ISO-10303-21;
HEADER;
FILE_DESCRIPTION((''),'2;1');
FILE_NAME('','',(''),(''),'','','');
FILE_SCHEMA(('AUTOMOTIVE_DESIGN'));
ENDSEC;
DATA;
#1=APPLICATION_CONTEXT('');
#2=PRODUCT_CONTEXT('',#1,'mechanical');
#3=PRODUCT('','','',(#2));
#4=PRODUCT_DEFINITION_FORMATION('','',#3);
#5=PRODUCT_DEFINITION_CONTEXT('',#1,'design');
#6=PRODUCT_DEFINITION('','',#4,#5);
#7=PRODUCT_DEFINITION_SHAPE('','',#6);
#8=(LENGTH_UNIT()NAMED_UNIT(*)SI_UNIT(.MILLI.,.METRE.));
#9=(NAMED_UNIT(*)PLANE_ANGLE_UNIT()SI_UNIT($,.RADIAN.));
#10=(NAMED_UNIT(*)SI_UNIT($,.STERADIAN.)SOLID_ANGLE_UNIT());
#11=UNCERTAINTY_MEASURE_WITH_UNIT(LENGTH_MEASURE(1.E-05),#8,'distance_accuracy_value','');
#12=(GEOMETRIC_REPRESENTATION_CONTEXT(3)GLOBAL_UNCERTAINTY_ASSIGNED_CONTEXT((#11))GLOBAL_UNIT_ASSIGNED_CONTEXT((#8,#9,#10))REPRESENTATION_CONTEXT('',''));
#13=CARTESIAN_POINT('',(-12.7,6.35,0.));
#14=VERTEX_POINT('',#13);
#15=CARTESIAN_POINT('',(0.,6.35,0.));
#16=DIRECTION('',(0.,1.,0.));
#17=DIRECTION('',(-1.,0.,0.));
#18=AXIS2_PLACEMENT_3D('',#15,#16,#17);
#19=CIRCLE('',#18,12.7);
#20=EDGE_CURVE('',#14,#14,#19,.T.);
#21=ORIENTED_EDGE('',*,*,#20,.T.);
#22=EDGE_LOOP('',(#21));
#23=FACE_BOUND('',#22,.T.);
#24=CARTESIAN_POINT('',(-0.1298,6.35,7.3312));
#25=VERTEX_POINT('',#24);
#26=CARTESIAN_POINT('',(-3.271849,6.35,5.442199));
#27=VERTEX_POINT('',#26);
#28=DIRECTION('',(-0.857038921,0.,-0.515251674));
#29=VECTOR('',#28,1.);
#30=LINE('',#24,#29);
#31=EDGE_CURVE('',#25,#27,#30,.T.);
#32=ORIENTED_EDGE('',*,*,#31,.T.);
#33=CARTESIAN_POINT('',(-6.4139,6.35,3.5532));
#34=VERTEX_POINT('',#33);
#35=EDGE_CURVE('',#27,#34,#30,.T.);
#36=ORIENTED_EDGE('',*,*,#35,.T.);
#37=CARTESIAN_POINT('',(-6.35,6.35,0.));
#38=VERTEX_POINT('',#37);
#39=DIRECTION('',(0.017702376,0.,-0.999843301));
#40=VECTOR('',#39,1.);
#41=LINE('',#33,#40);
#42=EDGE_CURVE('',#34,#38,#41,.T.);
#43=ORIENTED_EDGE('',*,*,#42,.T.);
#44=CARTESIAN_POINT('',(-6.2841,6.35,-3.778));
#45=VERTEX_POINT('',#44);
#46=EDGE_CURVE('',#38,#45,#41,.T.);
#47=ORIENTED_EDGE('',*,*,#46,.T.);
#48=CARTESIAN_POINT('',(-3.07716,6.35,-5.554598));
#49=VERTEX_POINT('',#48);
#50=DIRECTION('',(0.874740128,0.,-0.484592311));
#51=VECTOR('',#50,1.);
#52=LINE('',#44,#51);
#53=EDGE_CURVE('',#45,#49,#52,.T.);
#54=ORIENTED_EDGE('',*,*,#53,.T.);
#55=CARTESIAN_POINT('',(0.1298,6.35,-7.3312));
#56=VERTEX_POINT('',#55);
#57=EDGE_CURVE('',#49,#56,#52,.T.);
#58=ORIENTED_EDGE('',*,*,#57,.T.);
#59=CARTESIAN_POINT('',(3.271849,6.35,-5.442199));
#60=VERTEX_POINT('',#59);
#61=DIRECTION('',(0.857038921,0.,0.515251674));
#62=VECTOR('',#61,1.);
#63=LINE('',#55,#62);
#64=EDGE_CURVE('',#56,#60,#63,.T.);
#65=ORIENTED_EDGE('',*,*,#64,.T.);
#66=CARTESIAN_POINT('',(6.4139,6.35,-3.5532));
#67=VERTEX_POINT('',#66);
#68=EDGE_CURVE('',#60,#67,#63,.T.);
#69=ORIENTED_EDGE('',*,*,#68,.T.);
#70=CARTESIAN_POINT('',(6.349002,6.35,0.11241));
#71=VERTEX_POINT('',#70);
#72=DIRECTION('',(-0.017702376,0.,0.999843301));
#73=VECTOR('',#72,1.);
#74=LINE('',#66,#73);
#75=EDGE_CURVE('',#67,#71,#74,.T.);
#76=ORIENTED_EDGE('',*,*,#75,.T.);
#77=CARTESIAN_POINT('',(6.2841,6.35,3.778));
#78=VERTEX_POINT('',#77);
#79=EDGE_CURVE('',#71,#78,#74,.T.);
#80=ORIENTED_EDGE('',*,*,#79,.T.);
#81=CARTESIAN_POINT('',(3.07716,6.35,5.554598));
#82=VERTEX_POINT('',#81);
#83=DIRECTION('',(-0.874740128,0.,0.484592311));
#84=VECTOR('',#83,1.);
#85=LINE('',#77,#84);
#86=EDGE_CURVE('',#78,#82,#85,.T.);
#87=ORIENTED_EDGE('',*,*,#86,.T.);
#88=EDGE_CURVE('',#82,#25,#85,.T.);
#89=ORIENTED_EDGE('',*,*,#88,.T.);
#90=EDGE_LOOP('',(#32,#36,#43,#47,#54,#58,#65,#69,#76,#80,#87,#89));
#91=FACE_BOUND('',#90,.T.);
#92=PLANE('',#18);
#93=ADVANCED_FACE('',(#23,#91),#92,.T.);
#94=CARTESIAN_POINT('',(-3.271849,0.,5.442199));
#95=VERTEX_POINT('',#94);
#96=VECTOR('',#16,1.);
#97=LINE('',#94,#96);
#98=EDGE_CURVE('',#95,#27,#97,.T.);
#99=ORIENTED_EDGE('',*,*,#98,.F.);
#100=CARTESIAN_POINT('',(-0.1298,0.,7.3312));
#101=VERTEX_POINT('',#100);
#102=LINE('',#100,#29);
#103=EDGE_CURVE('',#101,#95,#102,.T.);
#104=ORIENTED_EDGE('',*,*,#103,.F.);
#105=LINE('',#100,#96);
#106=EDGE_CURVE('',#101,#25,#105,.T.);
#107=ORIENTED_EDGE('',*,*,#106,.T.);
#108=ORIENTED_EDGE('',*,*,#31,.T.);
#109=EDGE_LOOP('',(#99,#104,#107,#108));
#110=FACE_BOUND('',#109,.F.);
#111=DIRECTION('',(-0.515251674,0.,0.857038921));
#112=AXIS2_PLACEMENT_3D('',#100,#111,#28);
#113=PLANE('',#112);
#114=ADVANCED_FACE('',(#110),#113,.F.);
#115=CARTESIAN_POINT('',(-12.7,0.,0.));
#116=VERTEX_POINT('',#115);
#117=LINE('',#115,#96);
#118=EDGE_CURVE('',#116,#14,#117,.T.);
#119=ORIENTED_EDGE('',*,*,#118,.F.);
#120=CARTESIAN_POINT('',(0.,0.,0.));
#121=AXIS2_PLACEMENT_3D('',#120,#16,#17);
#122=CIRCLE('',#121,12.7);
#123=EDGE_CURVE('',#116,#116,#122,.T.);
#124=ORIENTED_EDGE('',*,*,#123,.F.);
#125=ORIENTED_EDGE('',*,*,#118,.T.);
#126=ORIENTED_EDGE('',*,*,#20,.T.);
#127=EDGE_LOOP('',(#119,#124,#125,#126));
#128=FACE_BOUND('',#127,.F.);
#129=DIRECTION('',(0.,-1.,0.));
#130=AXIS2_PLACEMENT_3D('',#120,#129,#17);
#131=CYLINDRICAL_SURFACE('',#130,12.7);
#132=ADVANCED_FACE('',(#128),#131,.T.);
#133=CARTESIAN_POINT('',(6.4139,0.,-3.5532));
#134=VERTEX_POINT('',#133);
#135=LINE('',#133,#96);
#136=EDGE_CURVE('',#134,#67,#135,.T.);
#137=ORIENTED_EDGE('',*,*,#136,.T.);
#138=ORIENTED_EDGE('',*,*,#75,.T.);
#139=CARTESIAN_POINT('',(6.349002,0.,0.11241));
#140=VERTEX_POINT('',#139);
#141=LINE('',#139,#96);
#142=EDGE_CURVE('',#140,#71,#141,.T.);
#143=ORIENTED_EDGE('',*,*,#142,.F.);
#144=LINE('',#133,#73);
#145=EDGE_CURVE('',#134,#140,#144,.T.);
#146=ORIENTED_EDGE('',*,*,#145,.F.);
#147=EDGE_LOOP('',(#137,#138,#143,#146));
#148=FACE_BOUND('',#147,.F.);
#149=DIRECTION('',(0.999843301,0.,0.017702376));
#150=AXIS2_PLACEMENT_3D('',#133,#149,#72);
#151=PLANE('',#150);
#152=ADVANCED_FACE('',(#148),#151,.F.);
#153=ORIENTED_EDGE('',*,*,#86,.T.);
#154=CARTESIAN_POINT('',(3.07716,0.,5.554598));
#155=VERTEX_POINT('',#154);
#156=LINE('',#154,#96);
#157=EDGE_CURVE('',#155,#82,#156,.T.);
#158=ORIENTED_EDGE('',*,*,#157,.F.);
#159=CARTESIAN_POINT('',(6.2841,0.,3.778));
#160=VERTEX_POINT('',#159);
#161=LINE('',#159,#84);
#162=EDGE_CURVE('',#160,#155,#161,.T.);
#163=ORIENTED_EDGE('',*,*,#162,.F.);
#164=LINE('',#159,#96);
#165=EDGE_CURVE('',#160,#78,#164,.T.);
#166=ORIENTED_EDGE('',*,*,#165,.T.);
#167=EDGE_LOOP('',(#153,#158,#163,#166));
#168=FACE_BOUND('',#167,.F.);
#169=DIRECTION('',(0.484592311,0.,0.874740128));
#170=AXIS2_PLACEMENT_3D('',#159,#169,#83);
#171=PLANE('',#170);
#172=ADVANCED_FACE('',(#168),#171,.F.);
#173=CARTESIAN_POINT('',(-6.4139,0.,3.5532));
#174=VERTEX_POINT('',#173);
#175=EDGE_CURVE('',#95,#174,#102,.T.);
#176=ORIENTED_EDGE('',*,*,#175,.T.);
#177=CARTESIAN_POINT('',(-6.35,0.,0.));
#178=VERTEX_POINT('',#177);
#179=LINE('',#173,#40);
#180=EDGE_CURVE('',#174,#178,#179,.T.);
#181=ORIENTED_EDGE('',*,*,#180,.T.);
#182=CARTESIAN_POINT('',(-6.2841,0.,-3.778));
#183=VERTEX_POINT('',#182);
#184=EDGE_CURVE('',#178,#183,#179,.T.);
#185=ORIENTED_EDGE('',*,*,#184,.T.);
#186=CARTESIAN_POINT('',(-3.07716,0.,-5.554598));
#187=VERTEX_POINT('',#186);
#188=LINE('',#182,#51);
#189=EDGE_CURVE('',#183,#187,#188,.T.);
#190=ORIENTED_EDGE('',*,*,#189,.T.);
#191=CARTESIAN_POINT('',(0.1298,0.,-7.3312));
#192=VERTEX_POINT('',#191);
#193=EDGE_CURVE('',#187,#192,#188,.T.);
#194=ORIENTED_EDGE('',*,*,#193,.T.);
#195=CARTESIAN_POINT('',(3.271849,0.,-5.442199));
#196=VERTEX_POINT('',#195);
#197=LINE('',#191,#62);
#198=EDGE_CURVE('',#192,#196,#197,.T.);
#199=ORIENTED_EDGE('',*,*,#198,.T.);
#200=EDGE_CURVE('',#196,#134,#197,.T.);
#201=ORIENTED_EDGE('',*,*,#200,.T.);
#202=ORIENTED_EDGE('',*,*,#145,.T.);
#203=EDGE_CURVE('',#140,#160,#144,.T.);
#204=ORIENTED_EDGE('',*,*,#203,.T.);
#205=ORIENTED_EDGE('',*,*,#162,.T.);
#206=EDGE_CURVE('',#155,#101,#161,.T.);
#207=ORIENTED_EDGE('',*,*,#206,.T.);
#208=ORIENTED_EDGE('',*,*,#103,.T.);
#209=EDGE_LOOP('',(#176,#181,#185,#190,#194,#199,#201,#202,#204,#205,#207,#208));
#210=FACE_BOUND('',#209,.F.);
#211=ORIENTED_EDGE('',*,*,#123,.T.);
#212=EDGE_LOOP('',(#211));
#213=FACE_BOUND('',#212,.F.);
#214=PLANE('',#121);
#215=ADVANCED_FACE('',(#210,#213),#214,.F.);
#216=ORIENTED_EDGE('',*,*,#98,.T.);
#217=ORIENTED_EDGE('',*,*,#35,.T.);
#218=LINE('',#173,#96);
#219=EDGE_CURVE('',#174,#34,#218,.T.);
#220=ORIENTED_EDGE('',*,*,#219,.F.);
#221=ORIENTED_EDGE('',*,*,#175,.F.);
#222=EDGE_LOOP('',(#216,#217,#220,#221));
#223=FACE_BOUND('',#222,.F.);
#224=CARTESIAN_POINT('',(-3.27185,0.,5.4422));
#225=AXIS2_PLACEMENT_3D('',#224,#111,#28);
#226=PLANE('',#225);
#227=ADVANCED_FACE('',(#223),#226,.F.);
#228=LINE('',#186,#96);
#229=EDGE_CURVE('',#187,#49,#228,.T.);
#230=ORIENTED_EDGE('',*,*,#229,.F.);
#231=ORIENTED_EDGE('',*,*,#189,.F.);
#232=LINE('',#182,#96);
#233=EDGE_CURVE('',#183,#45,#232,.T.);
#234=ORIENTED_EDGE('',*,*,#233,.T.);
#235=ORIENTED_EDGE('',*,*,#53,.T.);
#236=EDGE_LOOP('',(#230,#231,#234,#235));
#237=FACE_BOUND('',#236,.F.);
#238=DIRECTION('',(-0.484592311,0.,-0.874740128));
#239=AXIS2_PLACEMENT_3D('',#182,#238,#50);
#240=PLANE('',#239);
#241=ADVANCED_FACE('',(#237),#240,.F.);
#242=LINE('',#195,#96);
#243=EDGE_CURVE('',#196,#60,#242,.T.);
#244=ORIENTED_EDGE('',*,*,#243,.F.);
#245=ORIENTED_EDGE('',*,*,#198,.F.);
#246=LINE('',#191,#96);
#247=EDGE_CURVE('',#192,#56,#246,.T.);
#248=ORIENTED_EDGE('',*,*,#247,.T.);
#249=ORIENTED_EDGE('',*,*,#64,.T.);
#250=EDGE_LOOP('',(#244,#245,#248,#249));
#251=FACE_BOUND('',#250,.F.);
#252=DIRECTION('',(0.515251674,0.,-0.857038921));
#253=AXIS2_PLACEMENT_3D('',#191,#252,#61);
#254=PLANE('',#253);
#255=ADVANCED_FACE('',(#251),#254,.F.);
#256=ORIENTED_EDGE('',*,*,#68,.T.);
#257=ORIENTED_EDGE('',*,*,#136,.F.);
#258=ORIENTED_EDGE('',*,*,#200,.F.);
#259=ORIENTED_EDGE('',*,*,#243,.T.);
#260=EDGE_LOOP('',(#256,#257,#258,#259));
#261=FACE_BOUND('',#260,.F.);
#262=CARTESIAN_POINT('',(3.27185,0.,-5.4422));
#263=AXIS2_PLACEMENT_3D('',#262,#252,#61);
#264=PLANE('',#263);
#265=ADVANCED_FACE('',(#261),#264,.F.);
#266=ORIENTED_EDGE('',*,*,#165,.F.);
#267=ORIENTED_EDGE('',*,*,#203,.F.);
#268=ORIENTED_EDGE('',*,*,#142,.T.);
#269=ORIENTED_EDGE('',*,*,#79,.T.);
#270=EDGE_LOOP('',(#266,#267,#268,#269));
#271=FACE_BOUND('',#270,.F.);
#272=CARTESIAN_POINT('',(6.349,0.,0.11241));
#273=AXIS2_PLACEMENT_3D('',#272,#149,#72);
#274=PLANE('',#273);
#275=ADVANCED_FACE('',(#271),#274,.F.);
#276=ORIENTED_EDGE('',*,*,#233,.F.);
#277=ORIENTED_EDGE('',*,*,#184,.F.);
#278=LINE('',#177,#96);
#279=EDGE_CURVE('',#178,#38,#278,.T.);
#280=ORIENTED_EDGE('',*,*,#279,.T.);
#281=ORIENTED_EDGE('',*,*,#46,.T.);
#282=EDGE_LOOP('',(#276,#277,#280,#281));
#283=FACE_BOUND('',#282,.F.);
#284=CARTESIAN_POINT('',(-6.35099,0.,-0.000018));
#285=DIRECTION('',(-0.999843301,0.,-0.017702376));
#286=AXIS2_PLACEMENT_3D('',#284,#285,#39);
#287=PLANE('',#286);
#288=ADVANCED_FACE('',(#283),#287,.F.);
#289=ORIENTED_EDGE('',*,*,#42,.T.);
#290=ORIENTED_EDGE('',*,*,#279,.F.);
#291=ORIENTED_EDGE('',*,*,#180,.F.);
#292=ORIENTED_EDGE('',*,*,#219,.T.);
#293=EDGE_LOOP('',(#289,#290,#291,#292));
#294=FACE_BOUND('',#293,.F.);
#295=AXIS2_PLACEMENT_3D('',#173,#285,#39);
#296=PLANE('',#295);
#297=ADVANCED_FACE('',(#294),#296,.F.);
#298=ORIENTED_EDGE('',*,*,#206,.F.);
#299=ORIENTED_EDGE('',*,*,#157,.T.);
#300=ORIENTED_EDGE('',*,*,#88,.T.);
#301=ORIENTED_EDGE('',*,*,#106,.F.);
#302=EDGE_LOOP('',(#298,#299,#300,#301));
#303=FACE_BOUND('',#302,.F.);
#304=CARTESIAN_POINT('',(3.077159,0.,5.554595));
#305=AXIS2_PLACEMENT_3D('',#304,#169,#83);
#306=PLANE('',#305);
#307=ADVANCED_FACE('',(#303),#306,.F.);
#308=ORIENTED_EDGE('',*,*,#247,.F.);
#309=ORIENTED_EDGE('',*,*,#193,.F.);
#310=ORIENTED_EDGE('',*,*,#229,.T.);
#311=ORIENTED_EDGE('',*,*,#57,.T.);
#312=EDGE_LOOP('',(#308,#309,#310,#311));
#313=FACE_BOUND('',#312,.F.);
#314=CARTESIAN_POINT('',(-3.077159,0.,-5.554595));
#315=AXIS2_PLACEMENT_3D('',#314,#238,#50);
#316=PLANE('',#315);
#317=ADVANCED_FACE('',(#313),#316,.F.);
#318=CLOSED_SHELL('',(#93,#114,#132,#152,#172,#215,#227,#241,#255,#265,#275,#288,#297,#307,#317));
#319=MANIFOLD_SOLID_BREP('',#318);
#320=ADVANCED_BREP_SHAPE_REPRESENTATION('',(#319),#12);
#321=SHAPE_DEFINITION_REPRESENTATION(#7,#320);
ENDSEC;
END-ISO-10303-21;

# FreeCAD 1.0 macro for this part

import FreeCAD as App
import Part
import Sketcher

V = App.Vector
Q = App.Units.Quantity


def add_polygon(sketch, points):
    """Adds a closed chain of lines whose ends are joined by coincident constraints."""
    first, n = sketch.GeometryCount, len(points)
    for a, b in zip(points, points[1:] + points[:1]):
        sketch.addGeometry(Part.LineSegment(App.Vector(*a, 0), App.Vector(*b, 0)), False)
    for i in range(n):
        sketch.addConstraint(Sketcher.Constraint("Coincident", first + i, 2, first + (i + 1) % n, 1))

doc = App.newDocument("Part")
body = doc.addObject("PartDesign::Body", "Body")

# Sketch on XZ plane
sketch1 = doc.addObject("Sketcher::SketchObject", "Sketch")
body.addObject(sketch1)
sketch1.AttachmentSupport = (doc.XZ_Plane, [""])
sketch1.MapMode = "FlatFace"
sketch1.addGeometry(Part.Circle(V(0, 0, 0), V(0, 0, 1), 12.7), False)  # 0
add_polygon(sketch1, [(-6.4139, 3.5532), (-6.2841, -3.778), (0.1298, -7.3312), (6.4139, -3.5532), (6.2841, 3.778), (-0.1298, 7.3312)])  # lines 1-6
sketch1.addConstraint(Sketcher.Constraint("Coincident", 0, 3, -1, 1))
sketch1.addConstraint(Sketcher.Constraint("Symmetric", 1, 2, 4, 2, -1, 1))
sketch1.addConstraint(Sketcher.Constraint("Symmetric", 2, 2, 5, 2, -1, 1))
sketch1.addConstraint(Sketcher.Constraint("Symmetric", 3, 2, 6, 2, -1, 1))
sketch1.addConstraint(Sketcher.Constraint("Equal", 1, 2))
sketch1.addConstraint(Sketcher.Constraint("Equal", 2, 3))
sketch1.addConstraint(Sketcher.Constraint("Diameter", 0, Q("1 in")))
sketch1.addConstraint(Sketcher.Constraint("DistanceX", 1, 2, -1, 1, Q("0.2474 in")))
sketch1.addConstraint(Sketcher.Constraint("DistanceX", -1, 1, 2, 2, Q("0.0051 in")))
sketch1.addConstraint(Sketcher.Constraint("DistanceY", 3, 2, -1, 1, Q("0.1399 in")))
sketch1.addConstraint(Sketcher.Constraint("DistanceY", 2, 2, 1, 2, Q("0.1399 in")))
pad1 = doc.addObject("PartDesign::Pad", "Pad")
body.addObject(pad1)
pad1.Profile = sketch1
pad1.Length = Q("0.25 in")
pad1.Reversed = True

doc.recompute()
